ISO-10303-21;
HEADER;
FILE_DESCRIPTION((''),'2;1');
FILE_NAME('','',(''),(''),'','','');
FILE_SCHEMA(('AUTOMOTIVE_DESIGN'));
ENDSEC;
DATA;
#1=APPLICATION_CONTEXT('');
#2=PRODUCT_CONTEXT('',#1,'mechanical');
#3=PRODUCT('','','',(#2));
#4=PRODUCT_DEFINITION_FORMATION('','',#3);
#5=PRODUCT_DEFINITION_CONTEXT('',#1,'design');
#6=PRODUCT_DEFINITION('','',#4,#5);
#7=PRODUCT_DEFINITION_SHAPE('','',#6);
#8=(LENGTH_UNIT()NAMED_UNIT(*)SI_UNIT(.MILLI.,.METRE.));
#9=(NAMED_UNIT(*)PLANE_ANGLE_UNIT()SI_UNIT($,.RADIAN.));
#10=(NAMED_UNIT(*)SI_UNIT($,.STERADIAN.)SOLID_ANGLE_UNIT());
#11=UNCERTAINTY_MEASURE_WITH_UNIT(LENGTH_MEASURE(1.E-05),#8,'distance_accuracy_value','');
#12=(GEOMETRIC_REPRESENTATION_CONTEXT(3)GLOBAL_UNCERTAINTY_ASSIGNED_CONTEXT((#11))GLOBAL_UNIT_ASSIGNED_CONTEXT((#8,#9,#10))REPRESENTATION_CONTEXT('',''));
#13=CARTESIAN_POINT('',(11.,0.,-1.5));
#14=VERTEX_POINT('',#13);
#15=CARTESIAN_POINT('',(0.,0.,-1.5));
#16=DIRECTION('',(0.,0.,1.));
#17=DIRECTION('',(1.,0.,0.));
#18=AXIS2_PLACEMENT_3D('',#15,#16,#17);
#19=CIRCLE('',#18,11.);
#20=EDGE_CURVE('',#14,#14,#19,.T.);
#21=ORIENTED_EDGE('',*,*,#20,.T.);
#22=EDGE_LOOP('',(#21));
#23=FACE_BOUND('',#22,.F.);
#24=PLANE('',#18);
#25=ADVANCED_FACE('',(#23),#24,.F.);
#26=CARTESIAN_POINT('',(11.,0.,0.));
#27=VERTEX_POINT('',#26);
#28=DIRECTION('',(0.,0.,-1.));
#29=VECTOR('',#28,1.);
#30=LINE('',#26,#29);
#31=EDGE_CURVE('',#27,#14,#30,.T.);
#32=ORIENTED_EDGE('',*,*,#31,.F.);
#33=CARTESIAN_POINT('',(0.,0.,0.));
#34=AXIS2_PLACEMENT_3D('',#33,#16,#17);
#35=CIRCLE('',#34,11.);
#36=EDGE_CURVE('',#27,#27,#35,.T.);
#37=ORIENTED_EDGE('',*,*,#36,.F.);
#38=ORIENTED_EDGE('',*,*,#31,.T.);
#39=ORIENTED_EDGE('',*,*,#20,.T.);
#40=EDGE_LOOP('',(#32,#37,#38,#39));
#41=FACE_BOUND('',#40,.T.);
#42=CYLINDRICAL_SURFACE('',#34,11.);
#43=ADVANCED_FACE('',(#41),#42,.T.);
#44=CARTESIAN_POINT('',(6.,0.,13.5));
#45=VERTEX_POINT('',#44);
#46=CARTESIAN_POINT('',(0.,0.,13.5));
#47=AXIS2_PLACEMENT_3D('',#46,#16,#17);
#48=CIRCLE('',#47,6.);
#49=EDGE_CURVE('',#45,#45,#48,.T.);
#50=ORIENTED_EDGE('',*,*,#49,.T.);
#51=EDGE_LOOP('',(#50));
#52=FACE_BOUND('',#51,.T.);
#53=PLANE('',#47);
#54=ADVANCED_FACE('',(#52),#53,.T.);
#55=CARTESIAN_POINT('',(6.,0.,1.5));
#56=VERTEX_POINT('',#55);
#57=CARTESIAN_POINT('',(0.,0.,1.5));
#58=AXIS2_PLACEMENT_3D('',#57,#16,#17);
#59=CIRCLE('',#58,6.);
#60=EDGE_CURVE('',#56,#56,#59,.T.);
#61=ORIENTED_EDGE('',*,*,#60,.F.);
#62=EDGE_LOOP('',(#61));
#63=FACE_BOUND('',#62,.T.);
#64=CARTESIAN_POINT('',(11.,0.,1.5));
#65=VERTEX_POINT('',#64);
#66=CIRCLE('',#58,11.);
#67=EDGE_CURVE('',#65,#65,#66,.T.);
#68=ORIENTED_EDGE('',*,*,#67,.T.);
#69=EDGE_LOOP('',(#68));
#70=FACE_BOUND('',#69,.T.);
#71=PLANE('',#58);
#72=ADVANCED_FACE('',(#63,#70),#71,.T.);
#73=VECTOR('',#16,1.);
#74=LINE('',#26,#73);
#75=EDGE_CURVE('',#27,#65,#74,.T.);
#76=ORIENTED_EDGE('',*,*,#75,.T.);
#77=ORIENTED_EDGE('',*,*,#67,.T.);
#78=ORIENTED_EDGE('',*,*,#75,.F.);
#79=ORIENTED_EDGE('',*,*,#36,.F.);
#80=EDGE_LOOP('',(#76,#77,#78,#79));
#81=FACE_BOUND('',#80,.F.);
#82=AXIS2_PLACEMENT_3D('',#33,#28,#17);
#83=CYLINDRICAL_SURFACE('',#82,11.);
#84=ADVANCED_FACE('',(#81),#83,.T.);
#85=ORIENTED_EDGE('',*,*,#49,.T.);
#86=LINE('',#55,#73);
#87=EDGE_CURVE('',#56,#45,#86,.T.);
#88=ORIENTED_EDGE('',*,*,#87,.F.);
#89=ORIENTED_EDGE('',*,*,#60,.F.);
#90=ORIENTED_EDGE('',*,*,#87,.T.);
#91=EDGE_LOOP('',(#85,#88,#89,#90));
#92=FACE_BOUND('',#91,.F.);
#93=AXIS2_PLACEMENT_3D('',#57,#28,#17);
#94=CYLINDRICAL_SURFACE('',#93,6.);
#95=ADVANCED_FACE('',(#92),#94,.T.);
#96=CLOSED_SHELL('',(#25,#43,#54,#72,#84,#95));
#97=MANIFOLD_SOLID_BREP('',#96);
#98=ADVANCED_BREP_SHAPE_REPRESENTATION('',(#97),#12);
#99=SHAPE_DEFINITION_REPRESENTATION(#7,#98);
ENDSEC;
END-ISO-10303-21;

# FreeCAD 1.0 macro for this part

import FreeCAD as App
import Part
import Sketcher

V = App.Vector
Q = App.Units.Quantity

doc = App.newDocument("Part")
body = doc.addObject("PartDesign::Body", "Body")

# Sketch on XY plane
sketch1 = doc.addObject("Sketcher::SketchObject", "Sketch")
body.addObject(sketch1)
sketch1.AttachmentSupport = (doc.XY_Plane, [""])
sketch1.MapMode = "FlatFace"
sketch1.addGeometry(Part.Circle(V(0, 0, 0), V(0, 0, 1), 11), False)
sketch1.addConstraint([
    Sketcher.Constraint("Coincident", 0, 3, -1, 1),
    Sketcher.Constraint("Diameter", 0, Q("22 mm")),
])
pad1 = doc.addObject("PartDesign::Pad", "Pad")
body.addObject(pad1)
pad1.Profile = sketch1
pad1.Length = 3
pad1.Midplane = True

# Sketch on XY plane
sketch2 = doc.addObject("Sketcher::SketchObject", "Sketch001")
body.addObject(sketch2)
sketch2.AttachmentSupport = (doc.XY_Plane, [""])
sketch2.MapMode = "FlatFace"
sketch2.AttachmentOffset = App.Placement(V(0, 0, 1.5), App.Rotation())
sketch2.addGeometry(Part.Circle(V(0, 0, 0), V(0, 0, 1), 6), False)
sketch2.addConstraint([
    Sketcher.Constraint("Coincident", 0, 3, -1, 1),
    Sketcher.Constraint("Diameter", 0, Q("12 mm")),
])
pad2 = doc.addObject("PartDesign::Pad", "Pad001")
body.addObject(pad2)
pad2.Profile = sketch2
pad2.Length = 12

doc.recompute()
